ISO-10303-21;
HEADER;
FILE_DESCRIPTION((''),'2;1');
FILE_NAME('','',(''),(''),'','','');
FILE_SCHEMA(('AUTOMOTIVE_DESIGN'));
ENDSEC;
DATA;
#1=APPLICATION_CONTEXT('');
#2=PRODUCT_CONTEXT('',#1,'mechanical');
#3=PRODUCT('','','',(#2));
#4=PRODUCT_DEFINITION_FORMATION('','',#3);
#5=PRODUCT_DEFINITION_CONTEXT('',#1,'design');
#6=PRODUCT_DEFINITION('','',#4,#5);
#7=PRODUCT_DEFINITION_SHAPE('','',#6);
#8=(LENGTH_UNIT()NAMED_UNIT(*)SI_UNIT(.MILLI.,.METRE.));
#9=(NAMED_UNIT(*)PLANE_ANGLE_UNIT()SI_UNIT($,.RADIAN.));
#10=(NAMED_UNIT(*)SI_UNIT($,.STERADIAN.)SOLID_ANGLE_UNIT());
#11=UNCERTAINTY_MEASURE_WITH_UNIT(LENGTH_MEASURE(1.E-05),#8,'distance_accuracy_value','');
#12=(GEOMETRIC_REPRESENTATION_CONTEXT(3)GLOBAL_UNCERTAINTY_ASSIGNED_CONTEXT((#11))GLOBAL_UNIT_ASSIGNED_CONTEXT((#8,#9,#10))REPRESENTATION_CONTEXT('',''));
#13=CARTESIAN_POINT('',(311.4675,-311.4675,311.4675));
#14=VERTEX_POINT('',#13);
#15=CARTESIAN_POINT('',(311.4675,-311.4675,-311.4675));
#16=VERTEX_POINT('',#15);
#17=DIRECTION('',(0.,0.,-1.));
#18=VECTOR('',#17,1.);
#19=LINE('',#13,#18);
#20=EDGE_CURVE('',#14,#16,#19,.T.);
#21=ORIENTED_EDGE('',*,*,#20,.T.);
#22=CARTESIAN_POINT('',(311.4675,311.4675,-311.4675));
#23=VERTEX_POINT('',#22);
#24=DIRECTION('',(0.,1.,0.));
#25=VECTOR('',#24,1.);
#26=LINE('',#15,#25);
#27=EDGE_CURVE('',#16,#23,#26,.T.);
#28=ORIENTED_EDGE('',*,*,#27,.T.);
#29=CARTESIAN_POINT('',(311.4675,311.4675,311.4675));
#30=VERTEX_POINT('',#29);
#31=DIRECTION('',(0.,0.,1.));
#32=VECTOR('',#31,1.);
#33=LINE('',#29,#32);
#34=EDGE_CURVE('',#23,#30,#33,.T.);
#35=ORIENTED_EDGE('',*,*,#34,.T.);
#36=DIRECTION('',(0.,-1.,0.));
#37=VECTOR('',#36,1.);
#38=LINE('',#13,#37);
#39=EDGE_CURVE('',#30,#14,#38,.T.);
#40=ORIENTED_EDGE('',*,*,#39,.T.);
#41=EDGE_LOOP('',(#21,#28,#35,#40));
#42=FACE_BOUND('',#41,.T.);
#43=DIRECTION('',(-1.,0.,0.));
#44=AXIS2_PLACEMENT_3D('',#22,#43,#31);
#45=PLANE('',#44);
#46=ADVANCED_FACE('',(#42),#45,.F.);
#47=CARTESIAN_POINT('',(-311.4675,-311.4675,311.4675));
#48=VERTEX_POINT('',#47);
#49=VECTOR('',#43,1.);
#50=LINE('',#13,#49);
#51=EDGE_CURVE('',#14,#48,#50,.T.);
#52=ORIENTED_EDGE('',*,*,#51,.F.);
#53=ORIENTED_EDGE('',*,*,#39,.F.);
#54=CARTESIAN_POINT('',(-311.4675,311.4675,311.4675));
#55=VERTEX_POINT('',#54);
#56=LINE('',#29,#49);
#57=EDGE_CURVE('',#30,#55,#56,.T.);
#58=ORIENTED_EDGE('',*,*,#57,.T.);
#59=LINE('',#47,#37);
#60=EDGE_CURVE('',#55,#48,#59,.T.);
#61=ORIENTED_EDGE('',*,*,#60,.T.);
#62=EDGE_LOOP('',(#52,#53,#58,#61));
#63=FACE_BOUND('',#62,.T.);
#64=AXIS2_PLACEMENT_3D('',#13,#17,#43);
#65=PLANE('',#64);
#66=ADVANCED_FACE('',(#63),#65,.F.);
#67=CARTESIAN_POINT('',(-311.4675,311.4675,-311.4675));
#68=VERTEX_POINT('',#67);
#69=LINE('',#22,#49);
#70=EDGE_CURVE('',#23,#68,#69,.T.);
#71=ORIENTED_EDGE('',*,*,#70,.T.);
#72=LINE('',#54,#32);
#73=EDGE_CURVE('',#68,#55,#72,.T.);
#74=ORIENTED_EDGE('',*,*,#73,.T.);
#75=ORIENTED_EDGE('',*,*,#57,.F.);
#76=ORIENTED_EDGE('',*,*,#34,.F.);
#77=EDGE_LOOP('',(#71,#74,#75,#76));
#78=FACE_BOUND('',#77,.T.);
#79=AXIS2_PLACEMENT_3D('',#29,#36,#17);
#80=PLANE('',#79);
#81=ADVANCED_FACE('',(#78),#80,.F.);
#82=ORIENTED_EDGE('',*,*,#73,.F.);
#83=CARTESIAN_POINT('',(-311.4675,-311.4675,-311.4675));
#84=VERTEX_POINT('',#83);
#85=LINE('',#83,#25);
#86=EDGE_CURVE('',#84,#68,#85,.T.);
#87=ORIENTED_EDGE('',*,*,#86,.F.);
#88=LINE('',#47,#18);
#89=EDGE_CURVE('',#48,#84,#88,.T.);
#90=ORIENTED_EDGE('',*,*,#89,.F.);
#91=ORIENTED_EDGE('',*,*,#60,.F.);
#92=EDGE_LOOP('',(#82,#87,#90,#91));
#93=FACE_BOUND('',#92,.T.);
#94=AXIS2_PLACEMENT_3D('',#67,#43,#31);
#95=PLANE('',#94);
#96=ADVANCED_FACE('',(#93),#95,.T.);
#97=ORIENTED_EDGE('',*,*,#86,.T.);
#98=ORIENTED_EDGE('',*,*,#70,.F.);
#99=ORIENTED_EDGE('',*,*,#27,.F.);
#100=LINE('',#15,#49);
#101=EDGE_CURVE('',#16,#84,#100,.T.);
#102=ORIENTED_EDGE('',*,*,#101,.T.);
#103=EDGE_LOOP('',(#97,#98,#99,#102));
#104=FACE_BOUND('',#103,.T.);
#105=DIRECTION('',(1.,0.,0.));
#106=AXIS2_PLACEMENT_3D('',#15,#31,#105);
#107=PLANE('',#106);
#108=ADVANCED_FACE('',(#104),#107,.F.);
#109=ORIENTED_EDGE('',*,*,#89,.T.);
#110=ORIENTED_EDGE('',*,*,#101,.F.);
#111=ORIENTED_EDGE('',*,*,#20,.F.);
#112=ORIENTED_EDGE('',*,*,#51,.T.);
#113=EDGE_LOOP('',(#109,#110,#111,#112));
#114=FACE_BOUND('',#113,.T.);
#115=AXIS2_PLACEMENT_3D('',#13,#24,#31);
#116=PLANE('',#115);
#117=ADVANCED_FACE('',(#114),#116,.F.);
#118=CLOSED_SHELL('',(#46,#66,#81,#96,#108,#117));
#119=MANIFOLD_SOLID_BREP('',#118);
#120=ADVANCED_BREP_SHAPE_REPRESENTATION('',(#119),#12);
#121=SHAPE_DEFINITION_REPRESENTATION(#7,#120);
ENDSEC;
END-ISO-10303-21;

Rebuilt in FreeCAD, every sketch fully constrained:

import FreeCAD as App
import Part
import Sketcher
Q = App.Units.Quantity

doc = App.newDocument("Part")
body = doc.addObject("PartDesign::Body", "Body")

sketch1 = body.newObject("Sketcher::SketchObject", "Sketch")
sketch1.AttachmentSupport = (doc.getObject("YZ_Plane"), [""])
sketch1.MapMode = "FlatFace"
sketch1.addGeometry([
    Part.LineSegment(App.Vector(311, 311, 0), App.Vector(-311, 311, 0)),
    Part.LineSegment(App.Vector(-311, 311, 0), App.Vector(-311, -311, 0)),
    Part.LineSegment(App.Vector(-311, -311, 0), App.Vector(311, -311, 0)),
    Part.LineSegment(App.Vector(311, -311, 0), App.Vector(311, 311, 0)),
], False)
sketch1.addConstraint([
    Sketcher.Constraint("Coincident", 0, 2, 1, 1),
    Sketcher.Constraint("Coincident", 1, 2, 2, 1),
    Sketcher.Constraint("Coincident", 2, 2, 3, 1),
    Sketcher.Constraint("Coincident", 3, 2, 0, 1),
    Sketcher.Constraint("Horizontal", 0),
    Sketcher.Constraint("Vertical", 1),
    Sketcher.Constraint("Horizontal", 2),
    Sketcher.Constraint("Vertical", 3),
    Sketcher.Constraint("Symmetric", 0, 2, 2, 2, -1, 1),
    Sketcher.Constraint("Equal", 2, 1),
    Sketcher.Constraint("DistanceX", 0, 2, 0, 1, Q("24.525 in")),
])
pad1 = body.newObject("PartDesign::Pad", "Pad")
pad1.Profile = sketch1
pad1.Length = Q("24.525 in")
pad1.Midplane = True

doc.recompute()
